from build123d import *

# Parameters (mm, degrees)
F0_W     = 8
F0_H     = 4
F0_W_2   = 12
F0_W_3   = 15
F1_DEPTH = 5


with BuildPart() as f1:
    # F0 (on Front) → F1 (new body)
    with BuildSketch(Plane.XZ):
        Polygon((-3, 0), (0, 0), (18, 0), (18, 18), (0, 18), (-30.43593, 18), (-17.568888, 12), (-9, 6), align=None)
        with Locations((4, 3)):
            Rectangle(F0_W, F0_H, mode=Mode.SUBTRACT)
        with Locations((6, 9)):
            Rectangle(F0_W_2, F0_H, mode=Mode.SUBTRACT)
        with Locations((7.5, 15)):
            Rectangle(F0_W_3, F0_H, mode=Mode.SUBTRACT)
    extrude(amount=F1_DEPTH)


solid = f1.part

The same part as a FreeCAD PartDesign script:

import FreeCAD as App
import Part
import Sketcher
Q = App.Units.Quantity

doc = App.newDocument("Part")
body = doc.addObject("PartDesign::Body", "Body")

sketch1 = doc.addObject("Sketcher::SketchObject", "Sketch")
body.addObject(sketch1)
sketch1.AttachmentSupport = (doc.XZ_Plane, [""])
sketch1.MapMode = "FlatFace"
sketch1.addGeometry([
    Part.LineSegment(App.Vector(-3, 0, 0), App.Vector(18, 0, 0)),
    Part.LineSegment(App.Vector(18, 0, 0), App.Vector(18, 18, 0)),
    Part.LineSegment(App.Vector(18, 18, 0), App.Vector(-30.4, 18, 0)),
    Part.LineSegment(App.Vector(-30.4, 18, 0), App.Vector(-17.6, 12, 0)),
    Part.LineSegment(App.Vector(-17.6, 12, 0), App.Vector(-9, 6, 0)),
    Part.LineSegment(App.Vector(-9, 6, 0), App.Vector(-3, 0, 0)),
    Part.LineSegment(App.Vector(8, 1, 0), App.Vector(0, 1, 0)),
    Part.LineSegment(App.Vector(0, 1, 0), App.Vector(0, 5, 0)),
    Part.LineSegment(App.Vector(0, 5, 0), App.Vector(8, 5, 0)),
    Part.LineSegment(App.Vector(8, 5, 0), App.Vector(8, 1, 0)),
    Part.LineSegment(App.Vector(12, 7, 0), App.Vector(0, 7, 0)),
    Part.LineSegment(App.Vector(0, 7, 0), App.Vector(0, 11, 0)),
    Part.LineSegment(App.Vector(0, 11, 0), App.Vector(12, 11, 0)),
    Part.LineSegment(App.Vector(12, 11, 0), App.Vector(12, 7, 0)),
    Part.LineSegment(App.Vector(15, 13, 0), App.Vector(0, 13, 0)),
    Part.LineSegment(App.Vector(0, 13, 0), App.Vector(0, 17, 0)),
    Part.LineSegment(App.Vector(0, 17, 0), App.Vector(15, 17, 0)),
    Part.LineSegment(App.Vector(15, 17, 0), App.Vector(15, 13, 0)),
], False)
sketch1.addConstraint([
    Sketcher.Constraint("Coincident", 0, 2, 1, 1),
    Sketcher.Constraint("Coincident", 1, 2, 2, 1),
    Sketcher.Constraint("Coincident", 2, 2, 3, 1),
    Sketcher.Constraint("Coincident", 3, 2, 4, 1),
    Sketcher.Constraint("Coincident", 4, 2, 5, 1),
    Sketcher.Constraint("Coincident", 5, 2, 0, 1),
    Sketcher.Constraint("Coincident", 6, 2, 7, 1),
    Sketcher.Constraint("Coincident", 7, 2, 8, 1),
    Sketcher.Constraint("Coincident", 8, 2, 9, 1),
    Sketcher.Constraint("Coincident", 9, 2, 6, 1),
    Sketcher.Constraint("Coincident", 10, 2, 11, 1),
    Sketcher.Constraint("Coincident", 11, 2, 12, 1),
    Sketcher.Constraint("Coincident", 12, 2, 13, 1),
    Sketcher.Constraint("Coincident", 13, 2, 10, 1),
    Sketcher.Constraint("Coincident", 14, 2, 15, 1),
    Sketcher.Constraint("Coincident", 15, 2, 16, 1),
    Sketcher.Constraint("Coincident", 16, 2, 17, 1),
    Sketcher.Constraint("Coincident", 17, 2, 14, 1),
    Sketcher.Constraint("Horizontal", 0),
    Sketcher.Constraint("Vertical", 1),
    Sketcher.Constraint("Horizontal", 2),
    Sketcher.Constraint("Horizontal", 6),
    Sketcher.Constraint("Vertical", 7),
    Sketcher.Constraint("Horizontal", 8),
    Sketcher.Constraint("Vertical", 9),
    Sketcher.Constraint("Horizontal", 10),
    Sketcher.Constraint("Vertical", 11),
    Sketcher.Constraint("Horizontal", 12),
    Sketcher.Constraint("Vertical", 13),
    Sketcher.Constraint("Horizontal", 14),
    Sketcher.Constraint("Vertical", 15),
    Sketcher.Constraint("Horizontal", 16),
    Sketcher.Constraint("Vertical", 17),
    Sketcher.Constraint("PointOnObject", 0, 2, -1),
    Sketcher.Constraint("PointOnObject", 6, 2, -2),
    Sketcher.Constraint("PointOnObject", 10, 2, -2),
    Sketcher.Constraint("PointOnObject", 14, 2, -2),
    Sketcher.Constraint("Equal", 9, 11),
    Sketcher.Constraint("Equal", 13, 15),
    Sketcher.Constraint("DistanceX", 0, 1, 0, 2, Q("21 mm")),
    Sketcher.Constraint("DistanceX", 6, 2, 6, 1, Q("8 mm")),
    Sketcher.Constraint("DistanceX", 10, 2, 10, 1, Q("12 mm")),
    Sketcher.Constraint("DistanceX", 14, 2, 14, 1, Q("15 mm")),
    Sketcher.Constraint("DistanceY", 1, 1, 1, 2, Q("18 mm")),
    Sketcher.Constraint("DistanceY", 7, 1, 7, 2, Q("4 mm")),
    Sketcher.Constraint("Angle", 3, Q("-24.999999 deg")),
    Sketcher.Constraint("Angle", 4, Q("-35 deg")),
    Sketcher.Constraint("Angle", 5, Q("-45 deg")),
    Sketcher.Constraint("DistanceX", -1, 1, 0, 2, Q("18 mm")),
    Sketcher.Constraint("DistanceY", -1, 1, 3, 2, Q("12 mm")),
    Sketcher.Constraint("DistanceX", 4, 2, -1, 1, Q("9 mm")),
    Sketcher.Constraint("DistanceY", -1, 1, 6, 2, Q("1 mm")),
    Sketcher.Constraint("DistanceY", -1, 1, 10, 2, Q("7 mm")),
    Sketcher.Constraint("DistanceY", -1, 1, 14, 2, Q("13 mm")),
])
pad1 = doc.addObject("PartDesign::Pad", "Pad")
body.addObject(pad1)
pad1.Profile = sketch1
pad1.Length = 5

doc.recompute()
